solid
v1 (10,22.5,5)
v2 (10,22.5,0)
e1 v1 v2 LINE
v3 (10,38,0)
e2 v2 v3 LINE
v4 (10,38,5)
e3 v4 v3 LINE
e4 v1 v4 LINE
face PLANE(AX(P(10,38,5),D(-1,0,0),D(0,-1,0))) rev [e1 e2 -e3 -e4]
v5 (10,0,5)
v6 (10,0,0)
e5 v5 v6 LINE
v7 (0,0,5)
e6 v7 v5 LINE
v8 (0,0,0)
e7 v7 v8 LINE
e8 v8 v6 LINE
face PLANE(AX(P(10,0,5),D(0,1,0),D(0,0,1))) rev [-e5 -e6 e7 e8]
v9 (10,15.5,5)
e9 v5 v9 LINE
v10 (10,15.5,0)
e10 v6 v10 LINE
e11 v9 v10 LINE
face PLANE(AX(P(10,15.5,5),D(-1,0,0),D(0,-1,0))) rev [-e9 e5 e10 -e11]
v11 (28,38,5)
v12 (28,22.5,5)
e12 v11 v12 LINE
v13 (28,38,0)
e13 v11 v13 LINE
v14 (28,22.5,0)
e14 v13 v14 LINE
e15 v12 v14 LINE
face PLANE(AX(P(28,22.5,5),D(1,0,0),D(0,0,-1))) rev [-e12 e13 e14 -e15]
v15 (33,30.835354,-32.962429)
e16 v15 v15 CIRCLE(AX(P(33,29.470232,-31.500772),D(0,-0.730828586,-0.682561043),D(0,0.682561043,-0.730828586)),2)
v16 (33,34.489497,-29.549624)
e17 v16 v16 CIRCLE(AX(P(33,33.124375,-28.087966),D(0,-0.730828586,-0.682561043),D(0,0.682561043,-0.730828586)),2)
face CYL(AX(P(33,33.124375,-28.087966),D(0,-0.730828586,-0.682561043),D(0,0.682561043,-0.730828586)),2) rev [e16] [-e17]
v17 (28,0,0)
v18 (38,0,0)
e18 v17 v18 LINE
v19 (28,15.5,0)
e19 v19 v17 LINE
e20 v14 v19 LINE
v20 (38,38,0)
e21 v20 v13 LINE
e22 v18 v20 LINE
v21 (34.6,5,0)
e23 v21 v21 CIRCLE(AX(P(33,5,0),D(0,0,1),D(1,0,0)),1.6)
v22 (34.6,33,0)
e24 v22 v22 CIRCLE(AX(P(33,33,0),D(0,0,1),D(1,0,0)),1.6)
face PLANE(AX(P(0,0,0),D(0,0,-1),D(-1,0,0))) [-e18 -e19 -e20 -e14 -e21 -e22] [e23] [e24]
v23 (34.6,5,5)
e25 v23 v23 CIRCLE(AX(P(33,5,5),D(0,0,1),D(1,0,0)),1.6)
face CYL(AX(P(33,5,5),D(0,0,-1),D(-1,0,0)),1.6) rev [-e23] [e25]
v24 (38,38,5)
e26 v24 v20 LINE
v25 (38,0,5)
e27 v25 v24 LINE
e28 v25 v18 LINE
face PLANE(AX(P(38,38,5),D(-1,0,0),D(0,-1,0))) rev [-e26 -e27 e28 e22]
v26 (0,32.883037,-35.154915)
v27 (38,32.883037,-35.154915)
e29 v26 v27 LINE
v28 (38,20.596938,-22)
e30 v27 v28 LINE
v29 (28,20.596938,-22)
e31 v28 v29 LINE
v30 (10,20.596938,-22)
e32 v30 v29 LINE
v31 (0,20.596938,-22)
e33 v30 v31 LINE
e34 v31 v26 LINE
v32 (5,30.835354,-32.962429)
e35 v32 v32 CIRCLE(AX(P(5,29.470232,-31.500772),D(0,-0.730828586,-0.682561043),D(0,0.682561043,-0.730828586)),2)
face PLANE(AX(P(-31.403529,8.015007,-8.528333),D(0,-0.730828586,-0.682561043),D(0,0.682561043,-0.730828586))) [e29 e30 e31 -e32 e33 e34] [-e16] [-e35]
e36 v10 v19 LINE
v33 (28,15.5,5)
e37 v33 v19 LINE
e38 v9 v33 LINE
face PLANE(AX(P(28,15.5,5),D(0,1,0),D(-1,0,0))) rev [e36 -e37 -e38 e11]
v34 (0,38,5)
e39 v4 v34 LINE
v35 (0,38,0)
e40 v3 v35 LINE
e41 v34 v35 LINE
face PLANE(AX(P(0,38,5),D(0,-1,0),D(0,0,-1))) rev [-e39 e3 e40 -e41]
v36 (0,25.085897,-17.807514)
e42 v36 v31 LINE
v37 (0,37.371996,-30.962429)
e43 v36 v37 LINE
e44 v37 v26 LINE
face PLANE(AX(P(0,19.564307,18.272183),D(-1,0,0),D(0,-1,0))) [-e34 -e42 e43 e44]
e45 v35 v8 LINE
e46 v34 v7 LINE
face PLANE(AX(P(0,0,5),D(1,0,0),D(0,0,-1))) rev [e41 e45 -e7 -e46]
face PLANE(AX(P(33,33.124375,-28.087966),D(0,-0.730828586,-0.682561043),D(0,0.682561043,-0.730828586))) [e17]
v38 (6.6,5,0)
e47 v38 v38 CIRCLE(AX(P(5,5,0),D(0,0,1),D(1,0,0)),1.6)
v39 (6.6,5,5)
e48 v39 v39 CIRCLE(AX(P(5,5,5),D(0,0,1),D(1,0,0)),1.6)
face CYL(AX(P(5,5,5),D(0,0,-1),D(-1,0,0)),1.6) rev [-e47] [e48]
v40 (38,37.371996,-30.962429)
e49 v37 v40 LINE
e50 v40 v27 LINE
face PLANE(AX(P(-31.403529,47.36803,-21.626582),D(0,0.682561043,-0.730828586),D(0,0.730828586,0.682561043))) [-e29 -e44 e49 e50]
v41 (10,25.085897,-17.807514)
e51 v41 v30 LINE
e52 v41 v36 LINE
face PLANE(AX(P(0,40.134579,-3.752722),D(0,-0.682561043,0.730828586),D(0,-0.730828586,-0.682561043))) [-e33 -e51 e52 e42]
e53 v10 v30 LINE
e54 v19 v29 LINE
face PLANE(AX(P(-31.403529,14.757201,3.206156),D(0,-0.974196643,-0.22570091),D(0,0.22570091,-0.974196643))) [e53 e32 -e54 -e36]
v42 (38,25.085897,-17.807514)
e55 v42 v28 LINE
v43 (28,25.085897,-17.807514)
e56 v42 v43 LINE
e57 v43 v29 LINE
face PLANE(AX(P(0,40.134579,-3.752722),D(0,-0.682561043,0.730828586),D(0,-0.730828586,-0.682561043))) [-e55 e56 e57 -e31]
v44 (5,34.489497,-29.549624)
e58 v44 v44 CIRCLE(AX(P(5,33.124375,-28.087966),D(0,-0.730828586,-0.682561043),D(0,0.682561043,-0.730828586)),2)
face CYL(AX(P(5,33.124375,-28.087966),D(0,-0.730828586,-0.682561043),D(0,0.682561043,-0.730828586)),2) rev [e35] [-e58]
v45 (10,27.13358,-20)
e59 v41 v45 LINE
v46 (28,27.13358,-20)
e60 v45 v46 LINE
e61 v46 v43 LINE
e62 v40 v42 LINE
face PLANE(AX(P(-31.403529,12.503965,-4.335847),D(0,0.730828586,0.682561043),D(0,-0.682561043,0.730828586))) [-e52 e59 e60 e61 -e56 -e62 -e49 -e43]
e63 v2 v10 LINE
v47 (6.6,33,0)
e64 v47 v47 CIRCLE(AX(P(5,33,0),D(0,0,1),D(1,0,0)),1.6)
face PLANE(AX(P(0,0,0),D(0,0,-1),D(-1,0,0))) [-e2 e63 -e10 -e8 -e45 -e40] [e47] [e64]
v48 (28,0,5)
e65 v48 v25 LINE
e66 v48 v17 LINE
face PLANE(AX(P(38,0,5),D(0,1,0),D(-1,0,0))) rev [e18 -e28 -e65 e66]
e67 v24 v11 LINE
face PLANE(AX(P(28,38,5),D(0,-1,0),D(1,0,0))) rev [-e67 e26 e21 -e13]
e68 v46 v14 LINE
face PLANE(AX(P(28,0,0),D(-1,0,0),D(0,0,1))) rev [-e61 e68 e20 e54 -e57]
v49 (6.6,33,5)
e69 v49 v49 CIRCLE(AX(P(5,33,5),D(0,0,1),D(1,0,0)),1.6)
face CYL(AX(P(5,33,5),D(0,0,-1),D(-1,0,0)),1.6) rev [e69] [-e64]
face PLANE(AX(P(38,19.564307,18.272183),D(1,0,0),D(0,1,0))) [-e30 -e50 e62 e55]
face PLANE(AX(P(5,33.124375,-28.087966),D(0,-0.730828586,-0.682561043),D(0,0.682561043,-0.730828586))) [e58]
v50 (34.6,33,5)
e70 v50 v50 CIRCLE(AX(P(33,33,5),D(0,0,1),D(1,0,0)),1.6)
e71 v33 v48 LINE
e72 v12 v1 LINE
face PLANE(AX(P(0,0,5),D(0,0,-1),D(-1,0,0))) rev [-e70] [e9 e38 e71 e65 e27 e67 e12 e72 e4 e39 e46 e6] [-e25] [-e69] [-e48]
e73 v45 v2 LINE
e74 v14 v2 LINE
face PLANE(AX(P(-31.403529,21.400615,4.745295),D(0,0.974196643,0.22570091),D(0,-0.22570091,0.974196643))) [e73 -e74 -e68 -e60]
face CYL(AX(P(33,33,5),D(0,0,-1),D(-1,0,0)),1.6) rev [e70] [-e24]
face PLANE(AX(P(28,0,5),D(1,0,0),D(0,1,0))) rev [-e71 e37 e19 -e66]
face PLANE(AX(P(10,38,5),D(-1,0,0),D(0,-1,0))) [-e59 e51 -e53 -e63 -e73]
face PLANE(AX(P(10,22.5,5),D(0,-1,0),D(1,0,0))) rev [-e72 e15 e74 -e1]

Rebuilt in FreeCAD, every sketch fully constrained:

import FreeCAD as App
import Part
import Sketcher

doc = App.newDocument("Part")
params = doc.addObject("Spreadsheet::Sheet", "Params")
for row, (alias, value) in enumerate([
    ("sketch1_diameter", "3.2 mm"),
    ("sketch1_width", "10 mm"),
    ("sketch1_width2", "18 mm"),
    ("sketch1_height", "38 mm"),
    ("sketch1_height2", "15.5 mm"),
    ("pad1_length", "5 mm"),
    ("sketch2_width", "7 mm"),
    ("sketch2_length", "18 mm"),
    ("sketch2_length2", "15 mm"),
    ("pad2_length", "18 mm"),
    ("sketch3_width", "10 mm"),
    ("sketch3_height", "18 mm"),
    ("pad3_length", "6.142287 mm"),
    ("sketch4_diameter", "4 mm"),
    ("pocket1_length", "5 mm"),
], start=1):
    params.set(f"A{row}", alias)
    params.set(f"B{row}", "=" + value)
    params.setAlias(f"B{row}", alias)

body = doc.addObject("PartDesign::Body", "Body")

# Sketch on XY plane
sketch1 = doc.addObject("Sketcher::SketchObject", "Sketch")
body.addObject(sketch1)
sketch1.AttachmentSupport = (doc.XY_Plane, [""])
sketch1.MapMode = "FlatFace"
sketch1.addGeometry([
    Part.LineSegment(App.Vector(0, 38, 0), App.Vector(0, 0, 0)),  # 0
    Part.LineSegment(App.Vector(0, 0, 0), App.Vector(10, 0, 0)),  # 1
    Part.LineSegment(App.Vector(10, 0, 0), App.Vector(10, 15.5, 0)),  # 2
    Part.LineSegment(App.Vector(10, 15.5, 0), App.Vector(28, 15.5, 0)),  # 3
    Part.LineSegment(App.Vector(28, 15.5, 0), App.Vector(28, 0, 0)),  # 4
    Part.LineSegment(App.Vector(28, 0, 0), App.Vector(38, 0, 0)),  # 5
    Part.LineSegment(App.Vector(38, 0, 0), App.Vector(38, 38, 0)),  # 6
    Part.LineSegment(App.Vector(38, 38, 0), App.Vector(28, 38, 0)),  # 7
    Part.LineSegment(App.Vector(28, 38, 0), App.Vector(28, 22.5, 0)),  # 8
    Part.LineSegment(App.Vector(28, 22.5, 0), App.Vector(10, 22.5, 0)),  # 9
    Part.LineSegment(App.Vector(10, 22.5, 0), App.Vector(10, 38, 0)),  # 10
    Part.LineSegment(App.Vector(10, 38, 0), App.Vector(0, 38, 0)),  # 11
    Part.Circle(App.Vector(33, 5, 0), App.Vector(0, 0, 1), 1.6),  # 12
    Part.Circle(App.Vector(5, 5, 0), App.Vector(0, 0, 1), 1.6),  # 13
    Part.Circle(App.Vector(33, 33, 0), App.Vector(0, 0, 1), 1.6),  # 14
    Part.Circle(App.Vector(5, 33, 0), App.Vector(0, 0, 1), 1.6),  # 15
], False)
sketch1.addConstraint([
    Sketcher.Constraint("Coincident", 0, 2, 1, 1),
    Sketcher.Constraint("Coincident", 1, 2, 2, 1),
    Sketcher.Constraint("Coincident", 2, 2, 3, 1),
    Sketcher.Constraint("Coincident", 3, 2, 4, 1),
    Sketcher.Constraint("Coincident", 4, 2, 5, 1),
    Sketcher.Constraint("Coincident", 5, 2, 6, 1),
    Sketcher.Constraint("Coincident", 6, 2, 7, 1),
    Sketcher.Constraint("Coincident", 7, 2, 8, 1),
    Sketcher.Constraint("Coincident", 8, 2, 9, 1),
    Sketcher.Constraint("Coincident", 9, 2, 10, 1),
    Sketcher.Constraint("Coincident", 10, 2, 11, 1),
    Sketcher.Constraint("Coincident", 11, 2, 0, 1),
    Sketcher.Constraint("Vertical", 0),
    Sketcher.Constraint("Horizontal", 1),
    Sketcher.Constraint("Vertical", 2),
    Sketcher.Constraint("Horizontal", 3),
    Sketcher.Constraint("Vertical", 4),
    Sketcher.Constraint("Horizontal", 5),
    Sketcher.Constraint("Vertical", 6),
    Sketcher.Constraint("Horizontal", 7),
    Sketcher.Constraint("Vertical", 8),
    Sketcher.Constraint("Horizontal", 9),
    Sketcher.Constraint("Vertical", 10),
    Sketcher.Constraint("Horizontal", 11),
    Sketcher.Constraint("Coincident", 0, 2, -1, 1),
    Sketcher.Constraint("Equal", 12, 13),
    Sketcher.Constraint("Equal", 13, 14),
    Sketcher.Constraint("Equal", 14, 15),
    Sketcher.Constraint("PointOnObject", 4, 2, -1),
    Sketcher.Constraint("Horizontal", 12, 3, 13, 3),
    Sketcher.Constraint("Horizontal", 14, 3, 15, 3),
    Sketcher.Constraint("Horizontal", 7, 2, 10, 2),
    Sketcher.Constraint("Vertical", 12, 3, 14, 3),
    Sketcher.Constraint("Vertical", 13, 3, 15, 3),
    Sketcher.Constraint("Vertical", 4, 2, 7, 2),
    Sketcher.Constraint("Vertical", 2, 2, 9, 2),
    Sketcher.Constraint("Equal", 1, 5),
    Sketcher.Constraint("Equal", 4, 8),
    Sketcher.Constraint("Diameter", 12, 3.2),
    Sketcher.Constraint("DistanceX", 1, 1, 1, 2, 10.0),
    Sketcher.Constraint("DistanceX", 3, 1, 3, 2, 18.0),
    Sketcher.Constraint("DistanceY", 0, 2, 0, 1, 38.0),
    Sketcher.Constraint("DistanceY", 2, 1, 2, 2, 15.5),
    Sketcher.Constraint("DistanceX", -1, 1, 12, 3, 33.0),
    Sketcher.Constraint("DistanceY", -1, 1, 12, 3, 5.0),
    Sketcher.Constraint("DistanceX", -1, 1, 13, 3, 5.0),
    Sketcher.Constraint("DistanceY", -1, 1, 14, 3, 33.0),
])
sketch1.setExpression("Constraints[38]", "Params.sketch1_diameter")
sketch1.setExpression("Constraints[39]", "Params.sketch1_width")
sketch1.setExpression("Constraints[40]", "Params.sketch1_width2")
sketch1.setExpression("Constraints[41]", "Params.sketch1_height")
sketch1.setExpression("Constraints[42]", "Params.sketch1_height2")
pad1 = doc.addObject("PartDesign::Pad", "Pad")
body.addObject(pad1)
pad1.Profile = sketch1
pad1.setExpression("Length", "Params.pad1_length")

# Sketch on YZ plane
sketch2 = doc.addObject("Sketcher::SketchObject", "Sketch001")
body.addObject(sketch2)
sketch2.AttachmentSupport = (doc.YZ_Plane, [""])
sketch2.MapMode = "FlatFace"
sketch2.AttachmentOffset = App.Placement(App.Vector(0, 0, 28), App.Rotation())
sketch2.addGeometry([
    Part.LineSegment(App.Vector(27, -20, 0), App.Vector(22, 0, 0)),  # 0
    Part.LineSegment(App.Vector(22, 0, 0), App.Vector(16, 0, 0)),  # 1
    Part.LineSegment(App.Vector(16, 0, 0), App.Vector(21, -22, 0)),  # 2
    Part.LineSegment(App.Vector(21, -22, 0), App.Vector(33, -35, 0)),  # 3
    Part.LineSegment(App.Vector(33, -35, 0), App.Vector(37, -31, 0)),  # 4
    Part.LineSegment(App.Vector(37, -31, 0), App.Vector(27, -20, 0)),  # 5
], False)
sketch2.addConstraint([
    Sketcher.Constraint("Coincident", 0, 2, 1, 1),
    Sketcher.Constraint("Coincident", 1, 2, 2, 1),
    Sketcher.Constraint("Coincident", 2, 2, 3, 1),
    Sketcher.Constraint("Coincident", 3, 2, 4, 1),
    Sketcher.Constraint("Coincident", 4, 2, 5, 1),
    Sketcher.Constraint("Coincident", 5, 2, 0, 1),
    Sketcher.Constraint("Horizontal", 1),
    Sketcher.Constraint("PointOnObject", 0, 2, -1),
    Sketcher.Constraint("Parallel", 0, 2),
    Sketcher.Constraint("Perpendicular", 3, 4),
    Sketcher.Constraint("Perpendicular", 4, 5),
    Sketcher.Constraint("DistanceX", 1, 2, 1, 1, 7.0),
    Sketcher.Constraint("Distance", 3, 18.0),
    Sketcher.Constraint("Distance", 5, 15.0),
    Sketcher.Constraint("DistanceY", 2, 2, -1, 1, 22.0),
    Sketcher.Constraint("DistanceY", 5, 2, -1, 1, 20.0),
    Sketcher.Constraint("DistanceX", -1, 1, 0, 2, 22.5),
    Sketcher.Constraint("DistanceX", 2, 2, 3, 2, 12.286099),
])
sketch2.setExpression("Constraints[11]", "Params.sketch2_width")
sketch2.setExpression("Constraints[12]", "Params.sketch2_length")
sketch2.setExpression("Constraints[13]", "Params.sketch2_length2")
pad2 = doc.addObject("PartDesign::Pad", "Pad001")
body.addObject(pad2)
pad2.Profile = sketch2
pad2.setExpression("Length", "Params.pad2_length")
pad2.Reversed = True

# Sketch on an angled plane
sketch3 = doc.addObject("Sketcher::SketchObject", "Sketch002")
body.addObject(sketch3)
sketch3.Placement = App.Placement(App.Vector(0, 0.026667, 0.024905), App.Rotation(App.Vector(1, 0, 0), App.Vector(0, -0.682561043, 0.730828586), App.Vector(0, -0.730828586, -0.682561043), "ZXY"))
sketch3.addGeometry([
    Part.LineSegment(App.Vector(0, -30, 0), App.Vector(0, -48, 0)),  # 0
    Part.LineSegment(App.Vector(0, -48, 0), App.Vector(10, -48, 0)),  # 1
    Part.LineSegment(App.Vector(10, -48, 0), App.Vector(10, -30, 0)),  # 2
    Part.LineSegment(App.Vector(10, -30, 0), App.Vector(0, -30, 0)),  # 3
    Part.LineSegment(App.Vector(28, -30, 0), App.Vector(28, -48, 0)),  # 4
    Part.LineSegment(App.Vector(28, -48, 0), App.Vector(38, -48, 0)),  # 5
    Part.LineSegment(App.Vector(38, -48, 0), App.Vector(38, -30, 0)),  # 6
    Part.LineSegment(App.Vector(38, -30, 0), App.Vector(28, -30, 0)),  # 7
], False)
sketch3.addConstraint([
    Sketcher.Constraint("Coincident", 0, 2, 1, 1),
    Sketcher.Constraint("Coincident", 1, 2, 2, 1),
    Sketcher.Constraint("Coincident", 2, 2, 3, 1),
    Sketcher.Constraint("Coincident", 3, 2, 0, 1),
    Sketcher.Constraint("Coincident", 4, 2, 5, 1),
    Sketcher.Constraint("Coincident", 5, 2, 6, 1),
    Sketcher.Constraint("Coincident", 6, 2, 7, 1),
    Sketcher.Constraint("Coincident", 7, 2, 4, 1),
    Sketcher.Constraint("Vertical", 0),
    Sketcher.Constraint("Horizontal", 1),
    Sketcher.Constraint("Vertical", 2),
    Sketcher.Constraint("Horizontal", 3),
    Sketcher.Constraint("Vertical", 4),
    Sketcher.Constraint("Horizontal", 5),
    Sketcher.Constraint("Vertical", 6),
    Sketcher.Constraint("Horizontal", 7),
    Sketcher.Constraint("PointOnObject", 0, 2, -2),
    Sketcher.Constraint("Horizontal", 1, 2, 4, 2),
    Sketcher.Constraint("Horizontal", 3, 2, 6, 2),
    Sketcher.Constraint("Equal", 3, 5),
    Sketcher.Constraint("DistanceX", 1, 1, 1, 2, 10.0),
    Sketcher.Constraint("DistanceY", 0, 2, 0, 1, 18.0),
    Sketcher.Constraint("DistanceX", -1, 1, 4, 2, 28.0),
    Sketcher.Constraint("DistanceY", 0, 2, -1, 1, 48.136896),
])
sketch3.setExpression("Constraints[20]", "Params.sketch3_width")
sketch3.setExpression("Constraints[21]", "Params.sketch3_height")
pad3 = doc.addObject("PartDesign::Pad", "Pad002")
body.addObject(pad3)
pad3.Profile = sketch3
pad3.setExpression("Length", "Params.pad3_length")
pad3.Reversed = True

# Sketch on an angled plane
sketch4 = doc.addObject("Sketcher::SketchObject", "Sketch003")
body.addObject(sketch4)
sketch4.Placement = App.Placement(App.Vector(0, 0.026667, 0.024905), App.Rotation(App.Vector(1, 0, 0), App.Vector(0, -0.682561043, 0.730828586), App.Vector(0, -0.730828586, -0.682561043), "ZXY"))
sketch4.addGeometry([
    Part.Circle(App.Vector(5, -43.1, 0), App.Vector(0, 0, 1), 2),
    Part.Circle(App.Vector(33, -43.1, 0), App.Vector(0, 0, 1), 2),
], False)
sketch4.addConstraint([
    Sketcher.Constraint("Equal", 0, 1),
    Sketcher.Constraint("Horizontal", 0, 3, 1, 3),
    Sketcher.Constraint("Diameter", 0, 4.0),
    Sketcher.Constraint("DistanceX", -1, 1, 0, 3, 5.0),
    Sketcher.Constraint("DistanceX", -1, 1, 1, 3, 33.0),
    Sketcher.Constraint("DistanceY", 0, 3, -1, 1, 43.136896),
])
sketch4.setExpression("Constraints[2]", "Params.sketch4_diameter")
pocket1 = doc.addObject("PartDesign::Pocket", "Pocket")
body.addObject(pocket1)
pocket1.Profile = sketch4
pocket1.setExpression("Length", "Params.pocket1_length")

doc.recompute()
